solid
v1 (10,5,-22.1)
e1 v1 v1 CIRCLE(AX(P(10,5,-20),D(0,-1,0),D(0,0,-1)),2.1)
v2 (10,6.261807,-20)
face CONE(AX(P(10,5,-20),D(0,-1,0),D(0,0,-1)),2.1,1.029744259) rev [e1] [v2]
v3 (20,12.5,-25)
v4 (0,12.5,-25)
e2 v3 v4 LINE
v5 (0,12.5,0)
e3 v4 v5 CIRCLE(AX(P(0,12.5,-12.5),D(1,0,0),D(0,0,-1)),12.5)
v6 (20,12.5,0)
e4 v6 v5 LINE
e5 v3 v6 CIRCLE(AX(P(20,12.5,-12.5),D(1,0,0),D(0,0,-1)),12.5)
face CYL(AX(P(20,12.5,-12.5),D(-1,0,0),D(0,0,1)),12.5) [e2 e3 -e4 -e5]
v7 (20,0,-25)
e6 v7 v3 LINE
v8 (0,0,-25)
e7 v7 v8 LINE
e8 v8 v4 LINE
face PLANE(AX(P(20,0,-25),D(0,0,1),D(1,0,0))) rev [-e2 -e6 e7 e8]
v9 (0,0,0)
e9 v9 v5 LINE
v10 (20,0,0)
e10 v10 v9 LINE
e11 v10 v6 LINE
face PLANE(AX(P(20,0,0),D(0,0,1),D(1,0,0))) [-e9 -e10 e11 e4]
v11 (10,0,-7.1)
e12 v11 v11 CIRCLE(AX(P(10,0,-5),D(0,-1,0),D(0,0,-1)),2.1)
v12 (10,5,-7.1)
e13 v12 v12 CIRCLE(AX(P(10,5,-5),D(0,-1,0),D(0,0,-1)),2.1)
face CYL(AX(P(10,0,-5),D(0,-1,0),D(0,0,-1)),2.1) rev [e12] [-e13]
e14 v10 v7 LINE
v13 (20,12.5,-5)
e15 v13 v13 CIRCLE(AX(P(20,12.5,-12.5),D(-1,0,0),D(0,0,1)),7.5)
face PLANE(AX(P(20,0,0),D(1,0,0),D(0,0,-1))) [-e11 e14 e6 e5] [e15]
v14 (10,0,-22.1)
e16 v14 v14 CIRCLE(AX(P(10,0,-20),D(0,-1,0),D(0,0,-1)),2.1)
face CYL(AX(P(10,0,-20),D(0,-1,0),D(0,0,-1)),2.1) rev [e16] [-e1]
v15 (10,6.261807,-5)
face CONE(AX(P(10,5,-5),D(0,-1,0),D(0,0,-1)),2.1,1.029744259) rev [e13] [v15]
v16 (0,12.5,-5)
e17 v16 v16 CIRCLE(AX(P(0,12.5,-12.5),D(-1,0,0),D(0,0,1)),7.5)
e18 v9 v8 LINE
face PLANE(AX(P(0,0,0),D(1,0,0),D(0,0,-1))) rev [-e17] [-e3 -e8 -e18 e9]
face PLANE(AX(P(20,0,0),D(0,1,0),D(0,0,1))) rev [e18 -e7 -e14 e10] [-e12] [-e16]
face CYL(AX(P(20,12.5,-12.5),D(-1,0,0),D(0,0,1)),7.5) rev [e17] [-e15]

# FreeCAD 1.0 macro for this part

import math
import FreeCAD as App
import Part
import Sketcher
from FreeCAD import Vector
Q = App.Units.Quantity

doc = App.newDocument("Part")
body = doc.addObject("PartDesign::Body", "Body")

sketch1 = body.newObject("Sketcher::SketchObject", "Sketch")
sketch1.AttachmentSupport = (doc.getObject("YZ_Plane"), [""])
sketch1.MapMode = "FlatFace"
sketch1.addGeometry(Part.ArcOfCircle(Part.Circle(Vector(12.5, -12.5, 0), Vector(0, 0, 1), 12.5), math.radians(-90), math.radians(90)), False)
sketch1.addGeometry(Part.LineSegment(Vector(12.5, 0, 0), Vector(0, 0, 0)), False)
sketch1.addGeometry(Part.LineSegment(Vector(0, 0, 0), Vector(0, -25, 0)), False)
sketch1.addGeometry(Part.LineSegment(Vector(0, -25, 0), Vector(12.5, -25, 0)), False)
sketch1.addConstraint(Sketcher.Constraint("Tangent", 0, 2, 1, 1))
sketch1.addConstraint(Sketcher.Constraint("Coincident", 1, 2, 2, 1))
sketch1.addConstraint(Sketcher.Constraint("Coincident", 2, 2, 3, 1))
sketch1.addConstraint(Sketcher.Constraint("Tangent", 3, 2, 0, 1))
sketch1.addConstraint(Sketcher.Constraint("Horizontal", 1))
sketch1.addConstraint(Sketcher.Constraint("Vertical", 2))
sketch1.addConstraint(Sketcher.Constraint("Horizontal", 3))
sketch1.addConstraint(Sketcher.Constraint("Coincident", 1, 2, -1, 1))
sketch1.addConstraint(Sketcher.Constraint("Radius", 0, Q("12.5 mm")))
sketch1.addConstraint(Sketcher.Constraint("DistanceX", 1, 2, 1, 1, Q("12.5 mm")))
pad1 = body.newObject("PartDesign::Pad", "Pad")
pad1.Profile = sketch1
pad1.Length = 20

sketch2 = body.newObject("Sketcher::SketchObject", "Sketch001")
sketch2.AttachmentSupport = (doc.getObject("YZ_Plane"), [""])
sketch2.MapMode = "FlatFace"
sketch2.addGeometry(Part.Circle(Vector(12.5, -12.5, 0), Vector(0, 0, 1), 7.5), False)
sketch2.addConstraint(Sketcher.Constraint("Diameter", 0, Q("15 mm")))
sketch2.addConstraint(Sketcher.Constraint("DistanceX", -1, 1, 0, 3, Q("12.5 mm")))
sketch2.addConstraint(Sketcher.Constraint("DistanceY", 0, 3, -1, 1, Q("12.5 mm")))
pocket1 = body.newObject("PartDesign::Pocket", "Pocket")
pocket1.Profile = sketch2
pocket1.Type = "ThroughAll"
pocket1.Reversed = True

sketch3 = body.newObject("Sketcher::SketchObject", "Sketch002")
sketch3.AttachmentSupport = (doc.getObject("XZ_Plane"), [""])
sketch3.MapMode = "FlatFace"
sketch3.addGeometry(Part.Circle(Vector(10, -5, 0), Vector(0, 0, 1), 2.1), False)
sketch3.addGeometry(Part.Circle(Vector(10, -20, 0), Vector(0, 0, 1), 2.1), False)
sketch3.addConstraint(Sketcher.Constraint("Equal", 0, 1))
sketch3.addConstraint(Sketcher.Constraint("Vertical", 0, 3, 1, 3))
sketch3.addConstraint(Sketcher.Constraint("Diameter", 0, Q("4.2 mm")))
sketch3.addConstraint(Sketcher.Constraint("DistanceX", -1, 1, 0, 3, Q("10 mm")))
sketch3.addConstraint(Sketcher.Constraint("DistanceY", 0, 3, -1, 1, Q("5 mm")))
sketch3.addConstraint(Sketcher.Constraint("DistanceY", 1, 3, -1, 1, Q("20 mm")))
doc.recompute()
hole = body.newObject("PartDesign::Hole", "Hole")
hole.Profile = sketch3
hole.ThreadType = "None"
hole.Diameter = 4.2
hole.DepthType = "Dimension"
hole.Depth = 5
hole.DrillPoint = "Angled"
hole.DrillPointAngle = 118

doc.recompute()
